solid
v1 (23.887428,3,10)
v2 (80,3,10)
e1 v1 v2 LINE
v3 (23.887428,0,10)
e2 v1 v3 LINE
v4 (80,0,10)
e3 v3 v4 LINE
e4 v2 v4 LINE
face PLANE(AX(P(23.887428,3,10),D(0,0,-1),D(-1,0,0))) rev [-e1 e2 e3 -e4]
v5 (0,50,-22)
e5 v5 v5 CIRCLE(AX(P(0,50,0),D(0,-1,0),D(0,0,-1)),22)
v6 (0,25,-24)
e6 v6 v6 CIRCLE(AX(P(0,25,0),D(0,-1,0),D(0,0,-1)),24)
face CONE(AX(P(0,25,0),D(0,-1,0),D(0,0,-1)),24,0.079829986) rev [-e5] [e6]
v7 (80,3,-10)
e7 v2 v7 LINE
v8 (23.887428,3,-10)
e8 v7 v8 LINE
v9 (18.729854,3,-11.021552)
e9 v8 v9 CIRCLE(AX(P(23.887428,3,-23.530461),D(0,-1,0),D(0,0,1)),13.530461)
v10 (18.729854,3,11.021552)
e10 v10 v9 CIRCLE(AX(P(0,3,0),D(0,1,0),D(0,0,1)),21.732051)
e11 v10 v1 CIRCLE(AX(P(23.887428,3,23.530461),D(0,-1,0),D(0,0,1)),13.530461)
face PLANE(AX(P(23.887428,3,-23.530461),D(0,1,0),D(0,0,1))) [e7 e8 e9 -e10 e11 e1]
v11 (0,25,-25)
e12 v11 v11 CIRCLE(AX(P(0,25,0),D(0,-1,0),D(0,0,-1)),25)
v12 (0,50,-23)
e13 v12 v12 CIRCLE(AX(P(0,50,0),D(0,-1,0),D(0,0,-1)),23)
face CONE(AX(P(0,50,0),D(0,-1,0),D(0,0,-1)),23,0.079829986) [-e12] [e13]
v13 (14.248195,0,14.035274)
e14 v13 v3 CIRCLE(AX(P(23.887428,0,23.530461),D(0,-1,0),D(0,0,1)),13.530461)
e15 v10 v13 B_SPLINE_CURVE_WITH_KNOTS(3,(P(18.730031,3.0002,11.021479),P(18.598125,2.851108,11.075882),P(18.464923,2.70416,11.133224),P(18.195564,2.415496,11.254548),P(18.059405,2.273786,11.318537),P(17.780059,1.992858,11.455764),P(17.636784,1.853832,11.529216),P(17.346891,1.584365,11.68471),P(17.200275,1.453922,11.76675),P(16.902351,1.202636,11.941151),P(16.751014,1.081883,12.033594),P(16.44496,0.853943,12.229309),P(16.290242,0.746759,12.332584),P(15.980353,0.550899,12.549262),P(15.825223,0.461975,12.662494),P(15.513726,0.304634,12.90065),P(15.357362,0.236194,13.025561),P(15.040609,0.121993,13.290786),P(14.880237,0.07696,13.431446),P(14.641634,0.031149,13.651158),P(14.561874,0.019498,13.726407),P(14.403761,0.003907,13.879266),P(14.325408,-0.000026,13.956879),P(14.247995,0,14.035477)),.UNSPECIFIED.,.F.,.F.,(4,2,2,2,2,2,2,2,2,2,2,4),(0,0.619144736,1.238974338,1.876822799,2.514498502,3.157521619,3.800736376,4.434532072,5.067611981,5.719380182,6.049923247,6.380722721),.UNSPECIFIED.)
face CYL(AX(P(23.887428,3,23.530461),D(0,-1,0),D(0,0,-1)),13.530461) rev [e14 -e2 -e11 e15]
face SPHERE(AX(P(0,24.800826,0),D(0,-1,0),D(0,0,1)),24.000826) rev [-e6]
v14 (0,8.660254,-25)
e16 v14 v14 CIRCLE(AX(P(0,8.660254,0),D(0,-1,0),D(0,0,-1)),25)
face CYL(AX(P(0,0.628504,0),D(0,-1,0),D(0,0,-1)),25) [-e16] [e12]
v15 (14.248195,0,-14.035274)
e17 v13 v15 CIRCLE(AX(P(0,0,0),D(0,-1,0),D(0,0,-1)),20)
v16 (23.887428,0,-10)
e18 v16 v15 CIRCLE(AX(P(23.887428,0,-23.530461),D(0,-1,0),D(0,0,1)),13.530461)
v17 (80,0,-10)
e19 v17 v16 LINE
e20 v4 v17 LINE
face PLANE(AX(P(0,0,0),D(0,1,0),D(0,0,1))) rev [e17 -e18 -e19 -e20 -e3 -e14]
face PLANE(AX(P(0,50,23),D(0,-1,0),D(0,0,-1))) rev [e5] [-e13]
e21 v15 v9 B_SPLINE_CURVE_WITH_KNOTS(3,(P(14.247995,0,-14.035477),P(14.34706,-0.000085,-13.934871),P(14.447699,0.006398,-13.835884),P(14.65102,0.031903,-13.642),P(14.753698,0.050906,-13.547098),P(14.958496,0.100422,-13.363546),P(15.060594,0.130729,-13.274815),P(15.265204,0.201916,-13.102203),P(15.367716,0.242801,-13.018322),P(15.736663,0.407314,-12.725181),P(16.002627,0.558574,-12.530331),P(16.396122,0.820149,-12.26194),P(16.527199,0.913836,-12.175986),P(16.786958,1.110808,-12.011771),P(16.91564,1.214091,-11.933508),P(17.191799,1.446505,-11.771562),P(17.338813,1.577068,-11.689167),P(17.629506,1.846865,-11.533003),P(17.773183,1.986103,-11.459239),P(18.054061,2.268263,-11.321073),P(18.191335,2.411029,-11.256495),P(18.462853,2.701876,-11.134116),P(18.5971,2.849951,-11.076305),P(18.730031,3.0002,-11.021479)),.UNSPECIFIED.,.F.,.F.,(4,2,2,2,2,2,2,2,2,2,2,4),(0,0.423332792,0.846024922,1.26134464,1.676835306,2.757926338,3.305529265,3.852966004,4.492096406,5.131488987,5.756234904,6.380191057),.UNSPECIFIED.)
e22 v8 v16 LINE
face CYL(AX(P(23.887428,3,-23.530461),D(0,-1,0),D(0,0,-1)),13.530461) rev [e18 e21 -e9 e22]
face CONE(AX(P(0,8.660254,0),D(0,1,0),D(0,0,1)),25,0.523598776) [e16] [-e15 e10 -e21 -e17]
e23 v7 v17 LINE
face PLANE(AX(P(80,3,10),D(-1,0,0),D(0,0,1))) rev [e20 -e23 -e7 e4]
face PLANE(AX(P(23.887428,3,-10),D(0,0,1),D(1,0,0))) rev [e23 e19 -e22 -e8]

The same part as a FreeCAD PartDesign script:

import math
import FreeCAD as App
import Part
import Sketcher

V = App.Vector
Q = App.Units.Quantity

doc = App.newDocument("Part")
params = doc.addObject("Spreadsheet::Sheet", "Params")
for row, (alias, value) in enumerate([
    ("sketch1_height", "20 mm"),
    ("sketch1_height2", "1 mm"),
    ("sketch1_length", "10 mm"),
    ("sketch1_width", "0.8 mm"),
    ("revolution_angle", "360 deg"),
    ("sketch2_radius", "20 mm"),
    ("sketch2_height", "20 mm"),
    ("pad1_length", "3 mm"),
], start=1):
    params.set(f"A{row}", alias)
    params.set(f"B{row}", "=" + value)
    params.setAlias(f"B{row}", alias)

body = doc.addObject("PartDesign::Body", "Body")

sketch1 = doc.addObject("Sketcher::SketchObject", "Sketch")
body.addObject(sketch1)
sketch1.AttachmentSupport = (doc.YZ_Plane, [""])
sketch1.MapMode = "FlatFace"
sketch1.addGeometry([
    Part.LineSegment(V(0, 20, 0), V(0, 0, 0)),
    Part.LineSegment(V(0, 0, 0), V(0.8, 0, 0)),
    Part.ArcOfCircle(Part.Circle(V(24.800826, 0, 0), V(0, 0, 1), 24.000826), math.radians(89.524519), math.radians(180)),
    Part.LineSegment(V(25, 24, 0), V(50, 22, 0)),
    Part.LineSegment(V(50, 22, 0), V(50, 23, 0)),
    Part.LineSegment(V(50, 23, 0), V(25, 25, 0)),
    Part.LineSegment(V(25, 25, 0), V(8.660254, 25, 0)),
    Part.LineSegment(V(8.660254, 25, 0), V(0, 20, 0)),
], False)
sketch1.addConstraint([
    Sketcher.Constraint("Coincident", 0, 2, 1, 1),
    Sketcher.Constraint("Coincident", 1, 2, 2, 2),
    Sketcher.Constraint("Coincident", 2, 1, 3, 1),
    Sketcher.Constraint("Coincident", 3, 2, 4, 1),
    Sketcher.Constraint("Coincident", 4, 2, 5, 1),
    Sketcher.Constraint("Coincident", 5, 2, 6, 1),
    Sketcher.Constraint("Coincident", 6, 2, 7, 1),
    Sketcher.Constraint("Coincident", 7, 2, 0, 1),
    Sketcher.Constraint("Vertical", 0),
    Sketcher.Constraint("Horizontal", 1),
    Sketcher.Constraint("Vertical", 4),
    Sketcher.Constraint("Horizontal", 6),
    Sketcher.Constraint("Coincident", 0, 2, -1, 1),
    Sketcher.Constraint("PointOnObject", 2, 3, -1),
    Sketcher.Constraint("Parallel", 3, 5),
    Sketcher.Constraint("Vertical", 2, 1, 5, 2),
    Sketcher.Constraint("DistanceY", 0, 2, 0, 1, Q("20 mm")),
    Sketcher.Constraint("DistanceY", 4, 1, 4, 2, Q("1 mm")),
    Sketcher.Constraint("Angle", 7, Q("-150 deg")),
    Sketcher.Constraint("Distance", 7, Q("10 mm")),
    Sketcher.Constraint("DistanceX", 1, 1, 1, 2, Q("0.8 mm")),
    Sketcher.Constraint("DistanceX", -1, 1, 2, 1, Q("25 mm")),
    Sketcher.Constraint("DistanceX", -1, 1, 3, 2, Q("50 mm")),
    Sketcher.Constraint("DistanceY", -1, 1, 3, 2, Q("22 mm")),
])
sketch1.setExpression("Constraints[16]", "Params.sketch1_height")
sketch1.setExpression("Constraints[17]", "Params.sketch1_height2")
sketch1.setExpression("Constraints[19]", "Params.sketch1_length")
sketch1.setExpression("Constraints[20]", "Params.sketch1_width")
revolution = doc.addObject("PartDesign::Revolution", "Revolution")
body.addObject(revolution)
revolution.Profile = sketch1
revolution.ReferenceAxis = (sketch1, ["H_Axis"])
revolution.setExpression("Angle", "Params.revolution_angle")

sketch2 = doc.addObject("Sketcher::SketchObject", "Sketch001")
body.addObject(sketch2)
sketch2.AttachmentSupport = (doc.XZ_Plane, [""])
sketch2.MapMode = "FlatFace"
sketch2.addGeometry([
    Part.LineSegment(V(23.887428, 10, 0), V(80, 10, 0)),
    Part.LineSegment(V(80, 10, 0), V(80, -10, 0)),
    Part.LineSegment(V(80, -10, 0), V(23.887428, -10, 0)),
    Part.ArcOfCircle(Part.Circle(V(23.887428, -23.530461, 0), V(0, 0, 1), 13.530461), math.radians(90), math.radians(135.431321)),
    Part.ArcOfCircle(Part.Circle(V(0, 0, 0), V(0, 0, 1), 20), math.radians(-44.568679), math.radians(44.568679)),
    Part.ArcOfCircle(Part.Circle(V(23.887428, 23.530461, 0), V(0, 0, 1), 13.530461), math.radians(-135.431321), math.radians(-90)),
], False)
sketch2.addConstraint([
    Sketcher.Constraint("Coincident", 0, 2, 1, 1),
    Sketcher.Constraint("Coincident", 1, 2, 2, 1),
    Sketcher.Constraint("Tangent", 2, 2, 3, 1),
    Sketcher.Constraint("Tangent", 3, 2, 4, 1),
    Sketcher.Constraint("Tangent", 4, 2, 5, 1),
    Sketcher.Constraint("Tangent", 5, 2, 0, 1),
    Sketcher.Constraint("Horizontal", 0),
    Sketcher.Constraint("Vertical", 1),
    Sketcher.Constraint("Horizontal", 2),
    Sketcher.Constraint("Coincident", 4, 3, -1, 1),
    Sketcher.Constraint("Equal", 3, 5),
    Sketcher.Constraint("Vertical", 3, 3, 5, 3),
    Sketcher.Constraint("Radius", 4, Q("20 mm")),
    Sketcher.Constraint("DistanceY", 1, 2, 1, 1, Q("20 mm")),
    Sketcher.Constraint("DistanceX", -1, 1, 0, 2, Q("80 mm")),
    Sketcher.Constraint("Radius", 3, Q("13.530461 mm")),
])
sketch2.setExpression("Constraints[12]", "Params.sketch2_radius")
sketch2.setExpression("Constraints[13]", "Params.sketch2_height")
pad1 = doc.addObject("PartDesign::Pad", "Pad")
body.addObject(pad1)
pad1.Profile = sketch2
pad1.setExpression("Length", "Params.pad1_length")
pad1.Reversed = True

doc.recompute()
